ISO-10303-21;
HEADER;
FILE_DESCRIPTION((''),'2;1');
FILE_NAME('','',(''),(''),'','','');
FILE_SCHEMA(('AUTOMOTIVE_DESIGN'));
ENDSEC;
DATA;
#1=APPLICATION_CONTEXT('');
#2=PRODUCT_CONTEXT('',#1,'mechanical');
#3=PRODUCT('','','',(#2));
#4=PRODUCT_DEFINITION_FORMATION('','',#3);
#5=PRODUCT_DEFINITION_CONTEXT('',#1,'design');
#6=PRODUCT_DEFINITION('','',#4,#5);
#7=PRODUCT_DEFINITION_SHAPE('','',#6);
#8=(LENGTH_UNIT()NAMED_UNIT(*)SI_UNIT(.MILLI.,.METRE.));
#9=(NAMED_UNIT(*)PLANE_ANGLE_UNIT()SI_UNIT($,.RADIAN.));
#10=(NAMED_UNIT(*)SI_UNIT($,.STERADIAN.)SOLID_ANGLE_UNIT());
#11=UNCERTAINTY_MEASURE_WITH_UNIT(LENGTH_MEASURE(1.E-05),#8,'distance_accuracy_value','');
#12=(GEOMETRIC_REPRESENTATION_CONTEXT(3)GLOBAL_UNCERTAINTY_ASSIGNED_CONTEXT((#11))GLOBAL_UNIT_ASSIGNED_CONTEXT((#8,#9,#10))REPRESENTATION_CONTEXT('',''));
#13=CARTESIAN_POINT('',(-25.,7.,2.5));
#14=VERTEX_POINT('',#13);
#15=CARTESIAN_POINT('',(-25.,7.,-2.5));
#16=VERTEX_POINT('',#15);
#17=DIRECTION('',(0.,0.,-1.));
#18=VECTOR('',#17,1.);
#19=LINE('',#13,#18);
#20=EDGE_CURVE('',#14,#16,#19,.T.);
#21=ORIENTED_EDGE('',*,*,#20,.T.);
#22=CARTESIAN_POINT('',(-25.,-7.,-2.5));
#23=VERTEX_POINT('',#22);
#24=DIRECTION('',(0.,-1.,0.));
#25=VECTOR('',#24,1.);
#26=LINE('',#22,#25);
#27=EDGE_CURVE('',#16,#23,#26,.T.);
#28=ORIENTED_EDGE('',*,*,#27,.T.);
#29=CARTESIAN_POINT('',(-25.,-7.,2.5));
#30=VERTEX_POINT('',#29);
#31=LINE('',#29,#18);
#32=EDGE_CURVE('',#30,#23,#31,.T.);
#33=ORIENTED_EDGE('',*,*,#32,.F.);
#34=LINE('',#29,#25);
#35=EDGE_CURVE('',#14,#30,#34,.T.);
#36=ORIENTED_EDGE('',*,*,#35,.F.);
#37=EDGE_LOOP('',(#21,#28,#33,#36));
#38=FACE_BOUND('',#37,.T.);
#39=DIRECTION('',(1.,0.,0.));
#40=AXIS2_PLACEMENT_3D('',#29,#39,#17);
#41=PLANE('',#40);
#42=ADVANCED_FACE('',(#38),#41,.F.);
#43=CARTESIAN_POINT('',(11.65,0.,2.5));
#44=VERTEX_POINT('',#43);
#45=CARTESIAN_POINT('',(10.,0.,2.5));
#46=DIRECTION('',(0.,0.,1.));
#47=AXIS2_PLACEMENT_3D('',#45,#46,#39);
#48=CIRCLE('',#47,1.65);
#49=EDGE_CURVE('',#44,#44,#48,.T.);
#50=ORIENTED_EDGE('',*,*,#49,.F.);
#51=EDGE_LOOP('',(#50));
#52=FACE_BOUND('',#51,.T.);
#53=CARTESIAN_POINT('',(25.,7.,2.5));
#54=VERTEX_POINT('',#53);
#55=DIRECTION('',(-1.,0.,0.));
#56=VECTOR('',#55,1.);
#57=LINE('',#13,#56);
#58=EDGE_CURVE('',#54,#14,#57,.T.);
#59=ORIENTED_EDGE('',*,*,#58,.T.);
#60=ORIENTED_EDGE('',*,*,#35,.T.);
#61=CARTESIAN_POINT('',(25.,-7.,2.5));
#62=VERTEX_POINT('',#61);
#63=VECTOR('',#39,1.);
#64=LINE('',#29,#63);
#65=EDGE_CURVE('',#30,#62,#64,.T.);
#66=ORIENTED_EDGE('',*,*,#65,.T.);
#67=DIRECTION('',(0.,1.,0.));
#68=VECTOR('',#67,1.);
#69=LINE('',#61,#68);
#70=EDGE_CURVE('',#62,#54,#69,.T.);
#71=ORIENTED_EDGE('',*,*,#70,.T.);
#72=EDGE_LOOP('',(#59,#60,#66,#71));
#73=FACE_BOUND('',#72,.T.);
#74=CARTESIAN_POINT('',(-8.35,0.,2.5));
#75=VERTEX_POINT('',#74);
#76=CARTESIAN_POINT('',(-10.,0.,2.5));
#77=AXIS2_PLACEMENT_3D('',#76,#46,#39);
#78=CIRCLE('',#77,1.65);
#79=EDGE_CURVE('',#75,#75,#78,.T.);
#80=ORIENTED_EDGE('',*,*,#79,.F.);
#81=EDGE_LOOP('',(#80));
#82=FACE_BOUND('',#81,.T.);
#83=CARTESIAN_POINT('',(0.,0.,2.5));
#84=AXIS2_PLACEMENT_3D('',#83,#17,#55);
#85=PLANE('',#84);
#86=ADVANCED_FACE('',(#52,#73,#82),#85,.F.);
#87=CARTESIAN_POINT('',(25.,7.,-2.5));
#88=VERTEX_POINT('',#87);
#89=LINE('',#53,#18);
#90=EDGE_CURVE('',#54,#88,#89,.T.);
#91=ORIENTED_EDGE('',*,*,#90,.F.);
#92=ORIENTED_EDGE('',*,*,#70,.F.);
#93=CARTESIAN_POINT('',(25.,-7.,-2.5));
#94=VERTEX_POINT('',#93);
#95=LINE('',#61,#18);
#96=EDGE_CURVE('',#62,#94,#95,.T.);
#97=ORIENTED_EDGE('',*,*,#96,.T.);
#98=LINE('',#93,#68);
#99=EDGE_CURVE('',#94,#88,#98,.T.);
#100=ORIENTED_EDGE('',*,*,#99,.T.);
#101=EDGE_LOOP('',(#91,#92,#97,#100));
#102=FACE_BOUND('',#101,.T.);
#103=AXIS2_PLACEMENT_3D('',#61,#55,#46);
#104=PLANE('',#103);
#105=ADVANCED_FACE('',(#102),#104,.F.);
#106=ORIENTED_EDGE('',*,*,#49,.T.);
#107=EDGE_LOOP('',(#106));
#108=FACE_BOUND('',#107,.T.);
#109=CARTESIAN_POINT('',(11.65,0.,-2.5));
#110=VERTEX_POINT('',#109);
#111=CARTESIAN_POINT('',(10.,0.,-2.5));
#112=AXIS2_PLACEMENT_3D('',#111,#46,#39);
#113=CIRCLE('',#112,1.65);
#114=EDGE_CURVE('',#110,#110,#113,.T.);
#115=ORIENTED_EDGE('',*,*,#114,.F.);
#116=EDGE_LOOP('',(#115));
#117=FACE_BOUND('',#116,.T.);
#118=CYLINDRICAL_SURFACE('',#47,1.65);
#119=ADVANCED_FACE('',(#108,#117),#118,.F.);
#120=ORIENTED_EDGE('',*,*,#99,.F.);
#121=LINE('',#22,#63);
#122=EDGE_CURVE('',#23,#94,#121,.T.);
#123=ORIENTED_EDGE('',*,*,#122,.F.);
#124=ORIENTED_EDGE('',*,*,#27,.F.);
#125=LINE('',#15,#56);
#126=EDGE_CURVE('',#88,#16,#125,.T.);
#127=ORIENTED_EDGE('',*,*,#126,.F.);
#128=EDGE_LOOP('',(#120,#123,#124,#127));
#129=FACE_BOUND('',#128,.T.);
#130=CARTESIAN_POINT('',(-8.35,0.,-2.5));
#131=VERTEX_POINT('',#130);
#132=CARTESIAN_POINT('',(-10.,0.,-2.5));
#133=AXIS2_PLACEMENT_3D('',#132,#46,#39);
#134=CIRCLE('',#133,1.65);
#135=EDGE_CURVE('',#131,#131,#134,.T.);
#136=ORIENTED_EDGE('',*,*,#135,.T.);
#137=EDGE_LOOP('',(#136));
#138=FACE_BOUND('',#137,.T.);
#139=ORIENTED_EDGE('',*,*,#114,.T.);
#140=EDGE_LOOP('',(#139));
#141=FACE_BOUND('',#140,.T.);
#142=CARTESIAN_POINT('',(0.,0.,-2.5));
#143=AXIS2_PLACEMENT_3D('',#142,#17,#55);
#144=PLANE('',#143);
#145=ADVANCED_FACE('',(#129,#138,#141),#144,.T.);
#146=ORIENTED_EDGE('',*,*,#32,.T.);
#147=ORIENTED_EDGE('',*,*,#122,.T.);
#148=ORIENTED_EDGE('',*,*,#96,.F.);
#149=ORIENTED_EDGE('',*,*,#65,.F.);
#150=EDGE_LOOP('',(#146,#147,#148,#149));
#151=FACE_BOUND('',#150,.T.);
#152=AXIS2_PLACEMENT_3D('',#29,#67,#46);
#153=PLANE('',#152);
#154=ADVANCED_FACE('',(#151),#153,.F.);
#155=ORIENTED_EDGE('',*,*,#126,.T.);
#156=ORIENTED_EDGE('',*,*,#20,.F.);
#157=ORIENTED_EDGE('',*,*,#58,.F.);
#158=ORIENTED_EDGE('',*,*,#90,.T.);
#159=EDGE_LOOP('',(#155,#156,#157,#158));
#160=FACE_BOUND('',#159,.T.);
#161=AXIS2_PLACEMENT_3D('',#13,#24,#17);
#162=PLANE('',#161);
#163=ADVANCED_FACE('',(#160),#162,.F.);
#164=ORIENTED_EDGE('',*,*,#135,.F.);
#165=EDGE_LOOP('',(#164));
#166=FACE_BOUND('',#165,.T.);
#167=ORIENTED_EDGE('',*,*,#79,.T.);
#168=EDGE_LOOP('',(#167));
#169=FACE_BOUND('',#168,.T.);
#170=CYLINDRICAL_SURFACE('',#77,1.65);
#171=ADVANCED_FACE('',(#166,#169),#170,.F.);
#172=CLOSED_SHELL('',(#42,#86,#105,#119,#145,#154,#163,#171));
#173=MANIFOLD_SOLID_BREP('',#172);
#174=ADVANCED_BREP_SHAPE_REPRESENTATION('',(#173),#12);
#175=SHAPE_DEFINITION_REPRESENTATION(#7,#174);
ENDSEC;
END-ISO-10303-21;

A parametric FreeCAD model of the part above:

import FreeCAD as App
import Part
import Sketcher

doc = App.newDocument("Part")
body = doc.addObject("PartDesign::Body", "Body")

# Sketch on XY plane
sketch1 = body.newObject("Sketcher::SketchObject", "Sketch")
sketch1.AttachmentSupport = (doc.getObject("XY_Plane"), [""])
sketch1.MapMode = "FlatFace"
sketch1.addGeometry(Part.LineSegment(App.Vector(-25, 7, 0), App.Vector(-25, -7, 0)), False)
sketch1.addGeometry(Part.LineSegment(App.Vector(-25, -7, 0), App.Vector(25, -7, 0)), False)
sketch1.addGeometry(Part.LineSegment(App.Vector(25, -7, 0), App.Vector(25, 7, 0)), False)
sketch1.addGeometry(Part.LineSegment(App.Vector(25, 7, 0), App.Vector(-25, 7, 0)), False)
sketch1.addConstraint(Sketcher.Constraint("Coincident", 0, 2, 1, 1))
sketch1.addConstraint(Sketcher.Constraint("Coincident", 1, 2, 2, 1))
sketch1.addConstraint(Sketcher.Constraint("Coincident", 2, 2, 3, 1))
sketch1.addConstraint(Sketcher.Constraint("Coincident", 3, 2, 0, 1))
sketch1.addConstraint(Sketcher.Constraint("Vertical", 0))
sketch1.addConstraint(Sketcher.Constraint("Horizontal", 1))
sketch1.addConstraint(Sketcher.Constraint("Vertical", 2))
sketch1.addConstraint(Sketcher.Constraint("Horizontal", 3))
sketch1.addConstraint(Sketcher.Constraint("Symmetric", 0, 2, 2, 2, -1, 1))
sketch1.addConstraint(Sketcher.Constraint("DistanceX", 1, 1, 1, 2, 50.0))
sketch1.addConstraint(Sketcher.Constraint("DistanceY", 0, 2, 0, 1, 14.0))
pad1 = body.newObject("PartDesign::Pad", "Pad")
pad1.Profile = sketch1
pad1.Length = 5
pad1.Midplane = True

# Sketch on XY plane
sketch2 = body.newObject("Sketcher::SketchObject", "Sketch001")
sketch2.AttachmentSupport = (doc.getObject("XY_Plane"), [""])
sketch2.MapMode = "FlatFace"
sketch2.AttachmentOffset = App.Placement(App.Vector(0, 0, 2.5), App.Rotation())
sketch2.addGeometry(Part.Circle(App.Vector(-10, 0, 0), App.Vector(0, 0, 1), 1.6), False)
sketch2.addGeometry(Part.Circle(App.Vector(10, 0, 0), App.Vector(0, 0, 1), 1.6), False)
sketch2.addConstraint(Sketcher.Constraint("Equal", 0, 1))
sketch2.addConstraint(Sketcher.Constraint("Symmetric", 0, 3, 1, 3, -1, 1))
sketch2.addConstraint(Sketcher.Constraint("PointOnObject", 0, 3, -1))
sketch2.addConstraint(Sketcher.Constraint("Diameter", 0, 3.3))
sketch2.addConstraint(Sketcher.Constraint("DistanceX", 0, 3, -1, 1, 10.0))
doc.recompute()
hole = body.newObject("PartDesign::Hole", "Hole")
hole.Profile = sketch2
hole.ThreadType = "None"
hole.Diameter = 3.3
hole.DepthType = "ThroughAll"

doc.recompute()
